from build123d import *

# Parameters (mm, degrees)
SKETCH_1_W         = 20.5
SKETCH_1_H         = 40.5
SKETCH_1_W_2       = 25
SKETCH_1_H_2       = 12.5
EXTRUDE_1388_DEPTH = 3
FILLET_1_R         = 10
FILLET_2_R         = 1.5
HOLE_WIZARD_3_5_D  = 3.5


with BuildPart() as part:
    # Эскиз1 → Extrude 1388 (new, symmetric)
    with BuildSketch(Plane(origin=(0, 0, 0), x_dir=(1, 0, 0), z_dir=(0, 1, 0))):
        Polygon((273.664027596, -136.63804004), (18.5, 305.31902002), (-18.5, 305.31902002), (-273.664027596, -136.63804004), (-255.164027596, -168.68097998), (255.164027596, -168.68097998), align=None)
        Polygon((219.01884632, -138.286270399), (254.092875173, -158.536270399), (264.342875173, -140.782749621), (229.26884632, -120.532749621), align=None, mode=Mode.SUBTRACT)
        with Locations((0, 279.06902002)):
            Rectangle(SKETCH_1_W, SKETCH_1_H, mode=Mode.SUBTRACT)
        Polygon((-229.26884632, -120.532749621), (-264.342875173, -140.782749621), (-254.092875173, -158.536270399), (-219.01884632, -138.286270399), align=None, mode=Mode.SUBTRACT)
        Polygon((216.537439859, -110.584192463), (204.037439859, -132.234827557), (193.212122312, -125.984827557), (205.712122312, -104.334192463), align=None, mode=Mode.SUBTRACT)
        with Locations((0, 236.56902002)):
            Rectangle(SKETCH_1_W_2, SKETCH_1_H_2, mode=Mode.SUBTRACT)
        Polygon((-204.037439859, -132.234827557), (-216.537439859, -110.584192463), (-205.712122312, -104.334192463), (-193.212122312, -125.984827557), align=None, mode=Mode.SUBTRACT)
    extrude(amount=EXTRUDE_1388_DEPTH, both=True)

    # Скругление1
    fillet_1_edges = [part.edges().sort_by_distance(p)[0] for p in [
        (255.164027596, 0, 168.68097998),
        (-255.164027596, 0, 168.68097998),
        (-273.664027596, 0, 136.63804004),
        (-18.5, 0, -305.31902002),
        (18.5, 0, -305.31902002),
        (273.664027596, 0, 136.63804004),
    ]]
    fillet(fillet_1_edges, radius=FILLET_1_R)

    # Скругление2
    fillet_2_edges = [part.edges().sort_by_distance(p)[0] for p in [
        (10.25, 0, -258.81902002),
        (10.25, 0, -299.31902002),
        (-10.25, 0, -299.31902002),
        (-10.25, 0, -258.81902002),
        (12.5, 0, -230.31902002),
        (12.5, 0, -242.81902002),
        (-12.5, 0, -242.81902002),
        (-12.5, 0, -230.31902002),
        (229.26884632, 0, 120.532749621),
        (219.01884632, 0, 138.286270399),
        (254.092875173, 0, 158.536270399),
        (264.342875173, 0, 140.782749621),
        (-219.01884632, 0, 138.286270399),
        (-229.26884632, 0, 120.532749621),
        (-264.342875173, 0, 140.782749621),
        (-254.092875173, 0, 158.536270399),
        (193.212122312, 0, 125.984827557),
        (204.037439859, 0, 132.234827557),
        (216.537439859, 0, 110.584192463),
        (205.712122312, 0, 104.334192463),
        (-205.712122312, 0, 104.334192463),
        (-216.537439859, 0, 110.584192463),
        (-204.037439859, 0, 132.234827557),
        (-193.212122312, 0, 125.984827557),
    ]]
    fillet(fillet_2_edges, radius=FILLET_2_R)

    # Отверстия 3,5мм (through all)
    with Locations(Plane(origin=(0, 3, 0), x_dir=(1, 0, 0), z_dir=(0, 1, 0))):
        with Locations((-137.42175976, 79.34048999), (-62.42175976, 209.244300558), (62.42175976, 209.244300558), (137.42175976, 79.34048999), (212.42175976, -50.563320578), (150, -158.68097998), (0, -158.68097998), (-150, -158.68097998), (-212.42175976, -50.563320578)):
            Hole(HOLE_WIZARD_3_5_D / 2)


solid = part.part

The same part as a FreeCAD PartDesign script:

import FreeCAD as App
import Part
import Sketcher

V = App.Vector
Q = App.Units.Quantity


def edges_at(feature, points):
    """Names of the edges that pass closest to the given points."""
    edges = feature.Shape.Edges
    near = lambda p: min(range(len(edges)), key=lambda i: edges[i].distToShape(Part.Vertex(*p))[0])
    return sorted({f"Edge{near(p) + 1}" for p in points})

doc = App.newDocument("Part")
body = doc.addObject("PartDesign::Body", "Body")

# Sketch on XZ plane
sketch1 = body.newObject("Sketcher::SketchObject", "Sketch")
sketch1.AttachmentSupport = (doc.getObject("XZ_Plane"), [""])
sketch1.MapMode = "FlatFace"
sketch1.addGeometry(Part.LineSegment(V(274, 137, 0), V(18, -305, 0)), False)
sketch1.addGeometry(Part.LineSegment(V(18, -305, 0), V(-18, -305, 0)), False)
sketch1.addGeometry(Part.LineSegment(V(-18, -305, 0), V(-274, 137, 0)), False)
sketch1.addGeometry(Part.LineSegment(V(-274, 137, 0), V(-255, 169, 0)), False)
sketch1.addGeometry(Part.LineSegment(V(-255, 169, 0), V(255, 169, 0)), False)
sketch1.addGeometry(Part.LineSegment(V(255, 169, 0), V(274, 137, 0)), False)
sketch1.addGeometry(Part.LineSegment(V(-264, 141, 0), V(-229, 121, 0)), False)
sketch1.addGeometry(Part.LineSegment(V(-229, 121, 0), V(-219, 138, 0)), False)
sketch1.addGeometry(Part.LineSegment(V(-219, 138, 0), V(-254, 159, 0)), False)
sketch1.addGeometry(Part.LineSegment(V(-254, 159, 0), V(-264, 141, 0)), False)
sketch1.addGeometry(Part.LineSegment(V(-193, 126, 0), V(-204, 132, 0)), False)
sketch1.addGeometry(Part.LineSegment(V(-204, 132, 0), V(-217, 111, 0)), False)
sketch1.addGeometry(Part.LineSegment(V(-217, 111, 0), V(-206, 104, 0)), False)
sketch1.addGeometry(Part.LineSegment(V(-206, 104, 0), V(-193, 126, 0)), False)
sketch1.addGeometry(Part.LineSegment(V(254, 159, 0), V(219, 138, 0)), False)
sketch1.addGeometry(Part.LineSegment(V(219, 138, 0), V(229, 121, 0)), False)
sketch1.addGeometry(Part.LineSegment(V(229, 121, 0), V(264, 141, 0)), False)
sketch1.addGeometry(Part.LineSegment(V(264, 141, 0), V(254, 159, 0)), False)
sketch1.addGeometry(Part.LineSegment(V(206, 104, 0), V(217, 111, 0)), False)
sketch1.addGeometry(Part.LineSegment(V(217, 111, 0), V(204, 132, 0)), False)
sketch1.addGeometry(Part.LineSegment(V(204, 132, 0), V(193, 126, 0)), False)
sketch1.addGeometry(Part.LineSegment(V(193, 126, 0), V(206, 104, 0)), False)
sketch1.addGeometry(Part.LineSegment(V(12, -230, 0), V(-12, -230, 0)), False)
sketch1.addGeometry(Part.LineSegment(V(-12, -230, 0), V(-12, -243, 0)), False)
sketch1.addGeometry(Part.LineSegment(V(-12, -243, 0), V(12, -243, 0)), False)
sketch1.addGeometry(Part.LineSegment(V(12, -243, 0), V(12, -230, 0)), False)
sketch1.addGeometry(Part.LineSegment(V(10, -259, 0), V(-10, -259, 0)), False)
sketch1.addGeometry(Part.LineSegment(V(-10, -259, 0), V(-10, -299, 0)), False)
sketch1.addGeometry(Part.LineSegment(V(-10, -299, 0), V(10, -299, 0)), False)
sketch1.addGeometry(Part.LineSegment(V(10, -299, 0), V(10, -259, 0)), False)
sketch1.addConstraint(Sketcher.Constraint("Coincident", 0, 2, 1, 1))
sketch1.addConstraint(Sketcher.Constraint("Coincident", 1, 2, 2, 1))
sketch1.addConstraint(Sketcher.Constraint("Coincident", 2, 2, 3, 1))
sketch1.addConstraint(Sketcher.Constraint("Coincident", 3, 2, 4, 1))
sketch1.addConstraint(Sketcher.Constraint("Coincident", 4, 2, 5, 1))
sketch1.addConstraint(Sketcher.Constraint("Coincident", 5, 2, 0, 1))
sketch1.addConstraint(Sketcher.Constraint("Coincident", 6, 2, 7, 1))
sketch1.addConstraint(Sketcher.Constraint("Coincident", 7, 2, 8, 1))
sketch1.addConstraint(Sketcher.Constraint("Coincident", 8, 2, 9, 1))
sketch1.addConstraint(Sketcher.Constraint("Coincident", 9, 2, 6, 1))
sketch1.addConstraint(Sketcher.Constraint("Coincident", 10, 2, 11, 1))
sketch1.addConstraint(Sketcher.Constraint("Coincident", 11, 2, 12, 1))
sketch1.addConstraint(Sketcher.Constraint("Coincident", 12, 2, 13, 1))
sketch1.addConstraint(Sketcher.Constraint("Coincident", 13, 2, 10, 1))
sketch1.addConstraint(Sketcher.Constraint("Coincident", 14, 2, 15, 1))
sketch1.addConstraint(Sketcher.Constraint("Coincident", 15, 2, 16, 1))
sketch1.addConstraint(Sketcher.Constraint("Coincident", 16, 2, 17, 1))
sketch1.addConstraint(Sketcher.Constraint("Coincident", 17, 2, 14, 1))
sketch1.addConstraint(Sketcher.Constraint("Coincident", 18, 2, 19, 1))
sketch1.addConstraint(Sketcher.Constraint("Coincident", 19, 2, 20, 1))
sketch1.addConstraint(Sketcher.Constraint("Coincident", 20, 2, 21, 1))
sketch1.addConstraint(Sketcher.Constraint("Coincident", 21, 2, 18, 1))
sketch1.addConstraint(Sketcher.Constraint("Coincident", 22, 2, 23, 1))
sketch1.addConstraint(Sketcher.Constraint("Coincident", 23, 2, 24, 1))
sketch1.addConstraint(Sketcher.Constraint("Coincident", 24, 2, 25, 1))
sketch1.addConstraint(Sketcher.Constraint("Coincident", 25, 2, 22, 1))
sketch1.addConstraint(Sketcher.Constraint("Coincident", 26, 2, 27, 1))
sketch1.addConstraint(Sketcher.Constraint("Coincident", 27, 2, 28, 1))
sketch1.addConstraint(Sketcher.Constraint("Coincident", 28, 2, 29, 1))
sketch1.addConstraint(Sketcher.Constraint("Coincident", 29, 2, 26, 1))
sketch1.addConstraint(Sketcher.Constraint("Horizontal", 1))
sketch1.addConstraint(Sketcher.Constraint("Horizontal", 4))
sketch1.addConstraint(Sketcher.Constraint("Horizontal", 22))
sketch1.addConstraint(Sketcher.Constraint("Vertical", 23))
sketch1.addConstraint(Sketcher.Constraint("Horizontal", 24))
sketch1.addConstraint(Sketcher.Constraint("Vertical", 25))
sketch1.addConstraint(Sketcher.Constraint("Horizontal", 26))
sketch1.addConstraint(Sketcher.Constraint("Vertical", 27))
sketch1.addConstraint(Sketcher.Constraint("Horizontal", 28))
sketch1.addConstraint(Sketcher.Constraint("Vertical", 29))
sketch1.addConstraint(Sketcher.Constraint("Symmetric", 2, 2, 5, 2, -2))
sketch1.addConstraint(Sketcher.Constraint("Symmetric", 7, 2, 14, 2, -2))
sketch1.addConstraint(Sketcher.Constraint("Symmetric", 6, 2, 15, 2, -2))
sketch1.addConstraint(Sketcher.Constraint("Symmetric", 9, 2, 16, 2, -2))
sketch1.addConstraint(Sketcher.Constraint("Symmetric", 8, 2, 17, 2, -2))
sketch1.addConstraint(Sketcher.Constraint("Symmetric", 11, 2, 18, 2, -2))
sketch1.addConstraint(Sketcher.Constraint("Symmetric", 10, 2, 19, 2, -2))
sketch1.addConstraint(Sketcher.Constraint("Symmetric", 13, 2, 20, 2, -2))
sketch1.addConstraint(Sketcher.Constraint("Symmetric", 12, 2, 21, 2, -2))
sketch1.addConstraint(Sketcher.Constraint("Parallel", 0, 3))
sketch1.addConstraint(Sketcher.Constraint("Parallel", 2, 5))
sketch1.addConstraint(Sketcher.Constraint("Perpendicular", 3, 6))
sketch1.addConstraint(Sketcher.Constraint("Perpendicular", 6, 7))
sketch1.addConstraint(Sketcher.Constraint("Perpendicular", 7, 8))
sketch1.addConstraint(Sketcher.Constraint("Perpendicular", 8, 9))
sketch1.addConstraint(Sketcher.Constraint("Perpendicular", 9, 10))
sketch1.addConstraint(Sketcher.Constraint("Perpendicular", 10, 11))
sketch1.addConstraint(Sketcher.Constraint("Perpendicular", 11, 12))
sketch1.addConstraint(Sketcher.Constraint("Perpendicular", 12, 13))
sketch1.addConstraint(Sketcher.Constraint("Perpendicular", 5, 14))
sketch1.addConstraint(Sketcher.Constraint("DistanceX", 1, 2, 1, 1, Q("37 mm")))
sketch1.addConstraint(Sketcher.Constraint("DistanceX", 22, 2, 22, 1, Q("25 mm")))
sketch1.addConstraint(Sketcher.Constraint("Angle", 0, Q("-120 deg")))
sketch1.addConstraint(Sketcher.Constraint("Distance", 3, Q("37 mm")))
sketch1.addConstraint(Sketcher.Constraint("Distance", 11, Q("25 mm")))
sketch1.addConstraint(Sketcher.Constraint("DistanceX", 26, 2, 26, 1, Q("20.5 mm")))
sketch1.addConstraint(Sketcher.Constraint("DistanceY", 23, 2, 23, 1, Q("12.5 mm")))
sketch1.addConstraint(Sketcher.Constraint("DistanceY", 27, 2, 27, 1, Q("40.5 mm")))
sketch1.addConstraint(Sketcher.Constraint("DistanceY", 1, 2, 3, 2, Q("474 mm")))
sketch1.addConstraint(Sketcher.Constraint("DistanceX", 1, 2, 22, 2, Q("6 mm")))
sketch1.addConstraint(Sketcher.Constraint("DistanceY", 1, 2, 22, 2, Q("75 mm")))
sketch1.addConstraint(Sketcher.Constraint("DistanceY", 26, 2, 23, 2, Q("16 mm")))
sketch1.addConstraint(Sketcher.Constraint("Distance", 6, Q("40.5 mm")))
sketch1.addConstraint(Sketcher.Constraint("Distance", 7, Q("20.5 mm")))
sketch1.addConstraint(Sketcher.Constraint("Distance", 10, Q("12.5 mm")))
sketch1.addConstraint(Sketcher.Constraint("DistanceX", 26, 2, -1, 1, Q("10.25 mm")))
sketch1.addConstraint(Sketcher.Constraint("DistanceY", 0, 2, -1, 1, Q("305.31902 mm")))
sketch1.addConstraint(Sketcher.Constraint("DistanceY", -1, 1, 6, 2, Q("120.53275 mm")))
sketch1.addConstraint(Sketcher.Constraint("DistanceX", 10, 2, -1, 1, Q("204.03744 mm")))
sketch1.addConstraint(Sketcher.Constraint("DistanceX", 2, 2, 6, 2, Q("44.395181 mm")))
sketch1.addConstraint(Sketcher.Constraint("DistanceY", -1, 1, 10, 2, Q("132.234828 mm")))
pad1 = body.newObject("PartDesign::Pad", "Pad")
pad1.Profile = sketch1
pad1.Length = 6
pad1.Midplane = True
doc.recompute()

fillet = body.newObject("PartDesign::Fillet", "Fillet")
fillet.Base = (pad1, edges_at(pad1, [
    (255.164, 0, 168.681),
    (-255.164, 0, 168.681),
    (-273.664, 0, 136.638),
    (-18.5, 0, -305.319),
    (18.5, 0, -305.319),
    (273.664, 0, 136.638),
]))
fillet.Radius = 10
doc.recompute()

fillet2 = body.newObject("PartDesign::Fillet", "Fillet001")
fillet2.Base = (fillet, edges_at(fillet, [
    (10.25, 0, -258.819),
    (10.25, 0, -299.319),
    (-10.25, 0, -299.319),
    (-10.25, 0, -258.819),
    (12.5, 0, -230.319),
    (12.5, 0, -242.819),
    (-12.5, 0, -242.819),
    (-12.5, 0, -230.319),
    (229.269, 0, 120.533),
    (219.019, 0, 138.286),
    (254.093, 0, 158.536),
    (264.343, 0, 140.783),
    (-219.019, 0, 138.286),
    (-229.269, 0, 120.533),
    (-264.343, 0, 140.783),
    (-254.093, 0, 158.536),
    (193.212, 0, 125.985),
    (204.037, 0, 132.235),
    (216.537, 0, 110.584),
    (205.712, 0, 104.334),
    (-205.712, 0, 104.334),
    (-216.537, 0, 110.584),
    (-204.037, 0, 132.235),
    (-193.212, 0, 125.985),
]))
fillet2.Radius = 1.5

# Sketch on XZ plane
sketch2 = body.newObject("Sketcher::SketchObject", "Sketch001")
sketch2.AttachmentSupport = (doc.getObject("XZ_Plane"), [""])
sketch2.MapMode = "FlatFace"
sketch2.AttachmentOffset = App.Placement(V(0, 0, -3), App.Rotation())
sketch2.addGeometry(Part.Circle(V(-137.4, -79.3, 0), V(0, 0, 1), 1.8), False)
sketch2.addGeometry(Part.Circle(V(-62.4, -209.2, 0), V(0, 0, 1), 1.8), False)
sketch2.addGeometry(Part.Circle(V(62.4, -209.2, 0), V(0, 0, 1), 1.8), False)
sketch2.addGeometry(Part.Circle(V(137.4, -79.3, 0), V(0, 0, 1), 1.8), False)
sketch2.addGeometry(Part.Circle(V(212.4, 50.6, 0), V(0, 0, 1), 1.8), False)
sketch2.addGeometry(Part.Circle(V(150, 158.7, 0), V(0, 0, 1), 1.8), False)
sketch2.addGeometry(Part.Circle(V(0, 158.7, 0), V(0, 0, 1), 1.8), False)
sketch2.addGeometry(Part.Circle(V(-150, 158.7, 0), V(0, 0, 1), 1.8), False)
sketch2.addGeometry(Part.Circle(V(-212.4, 50.6, 0), V(0, 0, 1), 1.8), False)
sketch2.addConstraint(Sketcher.Constraint("Equal", 0, 1))
sketch2.addConstraint(Sketcher.Constraint("Equal", 1, 2))
sketch2.addConstraint(Sketcher.Constraint("Equal", 2, 3))
sketch2.addConstraint(Sketcher.Constraint("Equal", 3, 4))
sketch2.addConstraint(Sketcher.Constraint("Equal", 4, 5))
sketch2.addConstraint(Sketcher.Constraint("Equal", 5, 6))
sketch2.addConstraint(Sketcher.Constraint("Equal", 6, 7))
sketch2.addConstraint(Sketcher.Constraint("Equal", 7, 8))
sketch2.addConstraint(Sketcher.Constraint("Symmetric", 1, 3, 2, 3, -2))
sketch2.addConstraint(Sketcher.Constraint("Symmetric", 0, 3, 3, 3, -2))
sketch2.addConstraint(Sketcher.Constraint("Symmetric", 5, 3, 7, 3, -2))
sketch2.addConstraint(Sketcher.Constraint("Symmetric", 4, 3, 8, 3, -2))
sketch2.addConstraint(Sketcher.Constraint("PointOnObject", 6, 3, -2))
sketch2.addConstraint(Sketcher.Constraint("Horizontal", 5, 3, 6, 3))
sketch2.addConstraint(Sketcher.Constraint("Diameter", 0, Q("3.5 mm")))
sketch2.addConstraint(Sketcher.Constraint("DistanceX", -1, 1, 5, 3, Q("150 mm")))
sketch2.addConstraint(Sketcher.Constraint("DistanceX", 0, 3, 1, 3, Q("75 mm")))
sketch2.addConstraint(Sketcher.Constraint("DistanceX", 3, 3, 4, 3, Q("75 mm")))
sketch2.addConstraint(Sketcher.Constraint("DistanceY", 1, 3, -1, 1, Q("209.244301 mm")))
sketch2.addConstraint(Sketcher.Constraint("DistanceX", 0, 3, -1, 1, Q("137.42176 mm")))
sketch2.addConstraint(Sketcher.Constraint("DistanceY", 0, 3, -1, 1, Q("79.34049 mm")))
sketch2.addConstraint(Sketcher.Constraint("DistanceY", -1, 1, 4, 3, Q("50.563321 mm")))
sketch2.addConstraint(Sketcher.Constraint("DistanceY", -1, 1, 5, 3, Q("158.68098 mm")))
doc.recompute()
hole = body.newObject("PartDesign::Hole", "Hole")
hole.Profile = sketch2
hole.ThreadType = "None"
hole.Diameter = 3.5
hole.DepthType = "ThroughAll"
hole.Reversed = True

doc.recompute()
